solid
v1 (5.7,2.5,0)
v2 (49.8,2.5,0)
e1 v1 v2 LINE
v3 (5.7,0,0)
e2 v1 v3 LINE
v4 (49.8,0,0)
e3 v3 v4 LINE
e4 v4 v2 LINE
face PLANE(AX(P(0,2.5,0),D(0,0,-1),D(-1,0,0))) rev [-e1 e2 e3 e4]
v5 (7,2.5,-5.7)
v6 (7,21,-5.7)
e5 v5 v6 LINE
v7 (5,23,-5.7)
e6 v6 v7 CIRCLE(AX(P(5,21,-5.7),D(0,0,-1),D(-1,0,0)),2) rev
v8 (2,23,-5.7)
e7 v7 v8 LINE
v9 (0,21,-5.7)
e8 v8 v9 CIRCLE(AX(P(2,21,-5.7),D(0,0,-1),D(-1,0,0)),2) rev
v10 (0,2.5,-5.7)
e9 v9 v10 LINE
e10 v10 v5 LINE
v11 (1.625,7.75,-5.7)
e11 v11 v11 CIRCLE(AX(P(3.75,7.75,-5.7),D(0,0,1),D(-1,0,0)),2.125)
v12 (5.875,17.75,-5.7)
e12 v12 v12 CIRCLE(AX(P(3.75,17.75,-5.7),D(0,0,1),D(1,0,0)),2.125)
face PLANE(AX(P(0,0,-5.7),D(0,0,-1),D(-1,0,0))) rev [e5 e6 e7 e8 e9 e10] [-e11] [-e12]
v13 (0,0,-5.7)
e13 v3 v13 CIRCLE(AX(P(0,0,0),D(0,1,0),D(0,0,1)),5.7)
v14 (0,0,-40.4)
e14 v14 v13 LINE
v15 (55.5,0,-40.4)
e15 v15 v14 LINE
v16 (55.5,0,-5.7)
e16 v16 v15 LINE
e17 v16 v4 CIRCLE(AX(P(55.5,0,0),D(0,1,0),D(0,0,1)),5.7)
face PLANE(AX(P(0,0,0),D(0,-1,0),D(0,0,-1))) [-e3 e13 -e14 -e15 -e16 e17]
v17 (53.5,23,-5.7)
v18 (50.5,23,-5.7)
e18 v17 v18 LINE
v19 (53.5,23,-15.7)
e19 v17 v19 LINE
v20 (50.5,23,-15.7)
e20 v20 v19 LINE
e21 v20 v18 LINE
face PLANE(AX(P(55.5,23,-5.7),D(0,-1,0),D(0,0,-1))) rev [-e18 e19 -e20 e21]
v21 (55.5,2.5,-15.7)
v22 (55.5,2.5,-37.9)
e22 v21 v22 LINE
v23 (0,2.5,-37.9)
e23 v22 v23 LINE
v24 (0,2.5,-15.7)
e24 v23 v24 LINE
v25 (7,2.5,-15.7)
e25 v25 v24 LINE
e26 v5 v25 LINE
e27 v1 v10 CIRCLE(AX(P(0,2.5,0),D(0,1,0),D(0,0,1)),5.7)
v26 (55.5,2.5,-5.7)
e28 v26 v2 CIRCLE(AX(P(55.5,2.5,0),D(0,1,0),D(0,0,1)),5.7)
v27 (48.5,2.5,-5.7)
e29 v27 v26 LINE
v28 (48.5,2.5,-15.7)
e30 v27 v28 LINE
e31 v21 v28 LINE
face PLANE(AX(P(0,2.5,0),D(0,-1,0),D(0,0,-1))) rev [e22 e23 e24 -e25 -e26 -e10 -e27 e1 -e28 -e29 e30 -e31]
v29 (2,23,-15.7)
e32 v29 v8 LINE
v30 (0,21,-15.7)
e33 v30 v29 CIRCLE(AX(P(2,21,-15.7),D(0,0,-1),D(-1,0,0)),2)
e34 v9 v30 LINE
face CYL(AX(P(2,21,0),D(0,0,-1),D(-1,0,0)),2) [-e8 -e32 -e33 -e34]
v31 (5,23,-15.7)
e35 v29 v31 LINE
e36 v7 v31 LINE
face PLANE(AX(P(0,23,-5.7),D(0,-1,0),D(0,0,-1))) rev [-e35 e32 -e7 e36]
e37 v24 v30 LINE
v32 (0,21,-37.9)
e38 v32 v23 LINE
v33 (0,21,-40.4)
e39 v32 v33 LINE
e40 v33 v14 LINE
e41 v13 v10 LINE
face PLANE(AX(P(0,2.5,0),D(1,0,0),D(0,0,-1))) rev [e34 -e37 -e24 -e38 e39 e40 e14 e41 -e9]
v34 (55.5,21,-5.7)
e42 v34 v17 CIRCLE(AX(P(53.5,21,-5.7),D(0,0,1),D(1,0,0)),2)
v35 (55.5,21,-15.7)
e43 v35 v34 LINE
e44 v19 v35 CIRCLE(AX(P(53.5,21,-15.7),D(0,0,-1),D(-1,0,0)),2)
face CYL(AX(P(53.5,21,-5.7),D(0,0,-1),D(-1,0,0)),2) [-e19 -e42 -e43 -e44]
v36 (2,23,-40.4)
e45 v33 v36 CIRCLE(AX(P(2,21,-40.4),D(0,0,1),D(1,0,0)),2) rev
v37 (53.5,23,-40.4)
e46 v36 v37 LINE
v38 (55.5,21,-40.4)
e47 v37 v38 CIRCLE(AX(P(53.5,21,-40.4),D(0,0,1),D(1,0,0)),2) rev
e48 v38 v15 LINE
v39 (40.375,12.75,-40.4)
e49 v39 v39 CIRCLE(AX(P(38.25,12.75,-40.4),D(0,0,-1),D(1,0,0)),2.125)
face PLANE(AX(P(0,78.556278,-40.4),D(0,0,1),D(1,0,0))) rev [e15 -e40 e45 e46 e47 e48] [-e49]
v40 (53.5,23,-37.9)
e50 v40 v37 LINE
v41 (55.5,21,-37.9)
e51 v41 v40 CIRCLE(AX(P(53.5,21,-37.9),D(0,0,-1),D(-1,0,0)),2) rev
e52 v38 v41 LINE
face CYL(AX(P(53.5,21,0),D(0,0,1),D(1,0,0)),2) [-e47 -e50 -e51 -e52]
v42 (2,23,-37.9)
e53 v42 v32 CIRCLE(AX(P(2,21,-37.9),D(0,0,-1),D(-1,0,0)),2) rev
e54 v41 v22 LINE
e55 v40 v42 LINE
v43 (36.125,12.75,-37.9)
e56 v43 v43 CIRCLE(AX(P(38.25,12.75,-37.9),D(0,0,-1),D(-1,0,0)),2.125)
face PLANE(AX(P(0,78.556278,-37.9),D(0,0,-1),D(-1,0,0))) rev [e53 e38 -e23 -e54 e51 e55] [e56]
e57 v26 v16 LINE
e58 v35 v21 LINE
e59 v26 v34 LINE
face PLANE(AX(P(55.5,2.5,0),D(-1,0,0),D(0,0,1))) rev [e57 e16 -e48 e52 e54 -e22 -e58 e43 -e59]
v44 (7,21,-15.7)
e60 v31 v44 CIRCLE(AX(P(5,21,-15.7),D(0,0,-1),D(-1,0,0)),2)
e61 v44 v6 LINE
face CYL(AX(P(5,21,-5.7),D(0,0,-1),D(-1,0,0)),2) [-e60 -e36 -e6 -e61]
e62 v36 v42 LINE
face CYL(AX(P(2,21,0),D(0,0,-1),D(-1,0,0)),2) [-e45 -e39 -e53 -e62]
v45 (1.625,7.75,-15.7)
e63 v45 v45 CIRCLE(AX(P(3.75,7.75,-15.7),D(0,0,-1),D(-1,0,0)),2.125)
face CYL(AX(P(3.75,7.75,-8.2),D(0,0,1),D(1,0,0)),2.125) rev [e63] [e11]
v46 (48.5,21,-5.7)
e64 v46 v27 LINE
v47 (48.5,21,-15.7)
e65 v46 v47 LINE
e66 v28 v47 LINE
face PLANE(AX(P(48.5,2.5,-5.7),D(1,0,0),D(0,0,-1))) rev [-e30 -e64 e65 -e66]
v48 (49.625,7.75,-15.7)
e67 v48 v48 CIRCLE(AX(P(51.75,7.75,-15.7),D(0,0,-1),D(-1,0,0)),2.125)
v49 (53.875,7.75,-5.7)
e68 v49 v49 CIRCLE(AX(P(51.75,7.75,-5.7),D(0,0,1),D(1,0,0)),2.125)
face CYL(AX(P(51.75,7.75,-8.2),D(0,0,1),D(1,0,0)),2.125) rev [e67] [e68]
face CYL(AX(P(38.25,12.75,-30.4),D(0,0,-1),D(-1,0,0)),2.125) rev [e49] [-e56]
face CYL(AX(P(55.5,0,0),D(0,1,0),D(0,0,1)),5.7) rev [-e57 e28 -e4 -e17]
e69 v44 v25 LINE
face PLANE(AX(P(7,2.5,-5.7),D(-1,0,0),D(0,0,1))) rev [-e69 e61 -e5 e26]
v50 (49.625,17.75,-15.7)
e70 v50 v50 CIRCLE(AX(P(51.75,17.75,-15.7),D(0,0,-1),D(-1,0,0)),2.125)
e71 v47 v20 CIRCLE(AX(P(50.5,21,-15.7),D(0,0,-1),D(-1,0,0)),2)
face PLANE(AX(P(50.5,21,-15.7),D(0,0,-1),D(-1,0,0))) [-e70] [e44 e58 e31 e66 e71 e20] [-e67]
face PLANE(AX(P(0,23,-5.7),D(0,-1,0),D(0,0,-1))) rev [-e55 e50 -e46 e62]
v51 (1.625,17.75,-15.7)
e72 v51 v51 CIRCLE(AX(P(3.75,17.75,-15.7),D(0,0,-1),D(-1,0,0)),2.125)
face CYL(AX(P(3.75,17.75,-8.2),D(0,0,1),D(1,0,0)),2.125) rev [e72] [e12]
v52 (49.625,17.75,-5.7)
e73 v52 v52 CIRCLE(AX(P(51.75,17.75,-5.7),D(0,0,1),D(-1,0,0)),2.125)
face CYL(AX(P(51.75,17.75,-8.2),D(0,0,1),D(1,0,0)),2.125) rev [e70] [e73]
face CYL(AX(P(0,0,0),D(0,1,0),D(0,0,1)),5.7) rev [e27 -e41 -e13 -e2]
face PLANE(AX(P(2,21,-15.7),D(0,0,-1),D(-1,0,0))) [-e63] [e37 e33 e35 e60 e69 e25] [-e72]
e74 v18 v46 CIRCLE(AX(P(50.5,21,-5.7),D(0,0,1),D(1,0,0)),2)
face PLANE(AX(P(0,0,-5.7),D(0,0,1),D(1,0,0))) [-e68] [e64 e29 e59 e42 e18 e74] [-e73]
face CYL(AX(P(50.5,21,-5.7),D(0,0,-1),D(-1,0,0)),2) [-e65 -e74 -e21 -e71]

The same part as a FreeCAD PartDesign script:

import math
import FreeCAD as App
import Part
import Sketcher

V = App.Vector
Q = App.Units.Quantity


def edges_at(feature, points):
    """Names of the edges that pass closest to the given points."""
    edges = feature.Shape.Edges
    near = lambda p: min(range(len(edges)), key=lambda i: edges[i].distToShape(Part.Vertex(*p))[0])
    return sorted({f"Edge{near(p) + 1}" for p in points})


def add_polygon(sketch, points):
    """Adds a closed chain of lines whose ends are joined by coincident constraints."""
    first, n = sketch.GeometryCount, len(points)
    for a, b in zip(points, points[1:] + points[:1]):
        sketch.addGeometry(Part.LineSegment(App.Vector(*a, 0), App.Vector(*b, 0)), False)
    for i in range(n):
        sketch.addConstraint(Sketcher.Constraint("Coincident", first + i, 2, first + (i + 1) % n, 1))

doc = App.newDocument("Part")
params = doc.addObject("Spreadsheet::Sheet", "Params")
for row, (alias, value) in enumerate([
    ("sketch1_width", "55.5 mm"),
    ("sketch1_height", "37.9 mm"),
    ("pad1_length", "2.5 mm"),
    ("sketch2_width", "7 mm"),
    ("sketch2_height", "20.5 mm"),
    ("pad2_length", "2.5 mm"),
    ("sketch3_diameter", "4.25 mm"),
    ("pocket1_length", "2.5 mm"),
    ("sketch4_width", "55.5 mm"),
    ("sketch4_height", "2.5 mm"),
    ("pad3_length", "23 mm"),
    ("sketch5_diameter", "11.4 mm"),
    ("pocket2_length", "2.5 mm"),
    ("fillet_radius", "2 mm"),
    ("sketch6_diameter", "4.25 mm"),
    ("pocket3_length", "10 mm"),
    ("sketch7_diameter", "4.25 mm"),
    ("pocket4_length", "10 mm"),
    ("sketch8_diameter", "4.25 mm"),
    ("pad4_length", "2.5 mm"),
    ("sketch9_radius", "2 mm"),
    ("sketch9_diameter", "4.25 mm"),
    ("sketch9_width", "3 mm"),
    ("sketch9_height", "18.5 mm"),
    ("pad5_length", "7.5 mm"),
], start=1):
    params.set(f"A{row}", alias)
    params.set(f"B{row}", "=" + value)
    params.setAlias(f"B{row}", alias)

body = doc.addObject("PartDesign::Body", "Body")

sketch1 = body.newObject("Sketcher::SketchObject", "Sketch")
sketch1.AttachmentSupport = (doc.getObject("XZ_Plane"), [""])
sketch1.MapMode = "FlatFace"
add_polygon(sketch1, [(0, -37.9), (0, 0), (55.5, 0), (55.5, -37.9)])
sketch1.addConstraint([
    Sketcher.Constraint("Vertical", 0),
    Sketcher.Constraint("Horizontal", 1),
    Sketcher.Constraint("Vertical", 2),
    Sketcher.Constraint("Horizontal", 3),
    Sketcher.Constraint("Coincident", 0, 2, -1, 1),
    Sketcher.Constraint("DistanceX", 1, 1, 1, 2, Q("55.5 mm")),
    Sketcher.Constraint("DistanceY", 0, 1, 0, 2, Q("37.9 mm")),
])
sketch1.setExpression("Constraints[9]", "Params.sketch1_width")
sketch1.setExpression("Constraints[10]", "Params.sketch1_height")
pad1 = body.newObject("PartDesign::Pad", "Pad")
pad1.Profile = sketch1
pad1.setExpression("Length", "Params.pad1_length")
pad1.Reversed = True

sketch2 = body.newObject("Sketcher::SketchObject", "Sketch001")
sketch2.AttachmentSupport = (doc.getObject("XY_Plane"), [""])
sketch2.MapMode = "FlatFace"
sketch2.AttachmentOffset = App.Placement(V(0, 0, -8.2), App.Rotation())
add_polygon(sketch2, [(0, 23), (0, 2.5), (7, 2.5), (7, 23)])
add_polygon(sketch2, [(48.5, 23), (48.5, 2.5), (55.5, 2.5), (55.5, 23)])
sketch2.addConstraint([
    Sketcher.Constraint("Vertical", 0),
    Sketcher.Constraint("Horizontal", 1),
    Sketcher.Constraint("Vertical", 2),
    Sketcher.Constraint("Horizontal", 3),
    Sketcher.Constraint("Vertical", 4),
    Sketcher.Constraint("Horizontal", 5),
    Sketcher.Constraint("Vertical", 6),
    Sketcher.Constraint("Horizontal", 7),
    Sketcher.Constraint("PointOnObject", 0, 2, -2),
    Sketcher.Constraint("Horizontal", 1, 2, 4, 2),
    Sketcher.Constraint("Horizontal", 3, 2, 6, 2),
    Sketcher.Constraint("Equal", 3, 5),
    Sketcher.Constraint("DistanceX", 1, 1, 1, 2, Q("7 mm")),
    Sketcher.Constraint("DistanceY", 0, 2, 0, 1, Q("20.5 mm")),
    Sketcher.Constraint("DistanceY", -1, 1, 2, 2, Q("23 mm")),
    Sketcher.Constraint("DistanceX", -1, 1, 4, 2, Q("48.5 mm")),
])
sketch2.setExpression("Constraints[20]", "Params.sketch2_width")
sketch2.setExpression("Constraints[21]", "Params.sketch2_height")
pad2 = body.newObject("PartDesign::Pad", "Pad001")
pad2.Profile = sketch2
pad2.setExpression("Length", "Params.pad2_length")

sketch3 = body.newObject("Sketcher::SketchObject", "Sketch002")
sketch3.AttachmentSupport = (doc.getObject("XY_Plane"), [""])
sketch3.MapMode = "FlatFace"
sketch3.AttachmentOffset = App.Placement(V(0, 0, -5.7), App.Rotation())
sketch3.addGeometry([
    Part.Circle(V(3.75, 17.75, 0), V(0, 0, 1), 2.125),
    Part.Circle(V(3.75, 7.75, 0), V(0, 0, 1), 2.125),
    Part.Circle(V(51.75, 7.75, 0), V(0, 0, 1), 2.125),
    Part.Circle(V(51.75, 17.75, 0), V(0, 0, 1), 2.125),
], False)
sketch3.addConstraint([
    Sketcher.Constraint("Equal", 0, 1),
    Sketcher.Constraint("Equal", 1, 2),
    Sketcher.Constraint("Equal", 2, 3),
    Sketcher.Constraint("Horizontal", 1, 3, 2, 3),
    Sketcher.Constraint("Horizontal", 0, 3, 3, 3),
    Sketcher.Constraint("Vertical", 0, 3, 1, 3),
    Sketcher.Constraint("Vertical", 2, 3, 3, 3),
    Sketcher.Constraint("Diameter", 0, Q("4.25 mm")),
    Sketcher.Constraint("DistanceY", 1, 3, 0, 3, Q("10 mm")),
    Sketcher.Constraint("DistanceX", 1, 3, 2, 3, Q("48 mm")),
    Sketcher.Constraint("DistanceX", -1, 1, 0, 3, Q("3.75 mm")),
    Sketcher.Constraint("DistanceY", -1, 1, 0, 3, Q("17.75 mm")),
])
sketch3.setExpression("Constraints[7]", "Params.sketch3_diameter")
pocket1 = body.newObject("PartDesign::Pocket", "Pocket")
pocket1.Profile = sketch3
pocket1.setExpression("Length", "Params.pocket1_length")

sketch4 = body.newObject("Sketcher::SketchObject", "Sketch003")
sketch4.AttachmentSupport = (doc.getObject("XZ_Plane"), [""])
sketch4.MapMode = "FlatFace"
add_polygon(sketch4, [(0, -40.4), (0, -37.9), (55.5, -37.9), (55.5, -40.4)])
sketch4.addConstraint([
    Sketcher.Constraint("Vertical", 0),
    Sketcher.Constraint("Horizontal", 1),
    Sketcher.Constraint("Vertical", 2),
    Sketcher.Constraint("Horizontal", 3),
    Sketcher.Constraint("PointOnObject", 0, 2, -2),
    Sketcher.Constraint("DistanceX", 1, 1, 1, 2, Q("55.5 mm")),
    Sketcher.Constraint("DistanceY", 0, 1, 0, 2, Q("2.5 mm")),
    Sketcher.Constraint("DistanceY", 0, 2, -1, 1, Q("37.9 mm")),
])
sketch4.setExpression("Constraints[9]", "Params.sketch4_width")
sketch4.setExpression("Constraints[10]", "Params.sketch4_height")
pad3 = body.newObject("PartDesign::Pad", "Pad002")
pad3.Profile = sketch4
pad3.setExpression("Length", "Params.pad3_length")
pad3.Reversed = True

sketch5 = body.newObject("Sketcher::SketchObject", "Sketch004")
sketch5.AttachmentSupport = (doc.getObject("XZ_Plane"), [""])
sketch5.MapMode = "FlatFace"
sketch5.AttachmentOffset = App.Placement(V(0, 0, -2.5), App.Rotation())
sketch5.addGeometry([
    Part.Circle(V(0, 0, 0), V(0, 0, 1), 5.7),
    Part.Circle(V(55.5, 0, 0), V(0, 0, 1), 5.7),
], False)
sketch5.addConstraint([
    Sketcher.Constraint("Coincident", 0, 3, -1, 1),
    Sketcher.Constraint("Equal", 0, 1),
    Sketcher.Constraint("PointOnObject", 1, 3, -1),
    Sketcher.Constraint("Diameter", 0, Q("11.4 mm")),
    Sketcher.Constraint("DistanceX", -1, 1, 1, 3, Q("55.5 mm")),
])
sketch5.setExpression("Constraints[3]", "Params.sketch5_diameter")
pocket2 = body.newObject("PartDesign::Pocket", "Pocket001")
pocket2.Profile = sketch5
pocket2.setExpression("Length", "Params.pocket2_length")
pocket2.Reversed = True
doc.recompute()

fillet = body.newObject("PartDesign::Fillet", "Fillet")
fillet.Base = (pocket2, edges_at(pocket2, [
    (0, 23, -6.95),
    (7, 23, -6.95),
    (55.5, 23, -6.95),
    (48.5, 23, -6.95),
    (55.5, 23, -39.15),
    (0, 23, -39.15),
]))
fillet.setExpression("Radius", "Params.fillet_radius")

sketch6 = body.newObject("Sketcher::SketchObject", "Sketch005")
sketch6.AttachmentSupport = (doc.getObject("XY_Plane"), [""])
sketch6.MapMode = "FlatFace"
sketch6.AttachmentOffset = App.Placement(V(0, 0, -40.4), App.Rotation())
sketch6.addGeometry(Part.Circle(V(17.25, 12.75, 0), V(0, 0, 1), 2.125), False)
sketch6.addConstraint([
    Sketcher.Constraint("Diameter", 0, Q("4.25 mm")),
    Sketcher.Constraint("DistanceX", -1, 1, 0, 3, Q("17.25 mm")),
    Sketcher.Constraint("DistanceY", -1, 1, 0, 3, Q("12.75 mm")),
])
sketch6.setExpression("Constraints[0]", "Params.sketch6_diameter")
pocket3 = body.newObject("PartDesign::Pocket", "Pocket002")
pocket3.Profile = sketch6
pocket3.setExpression("Length", "Params.pocket3_length")
pocket3.Reversed = True

sketch7 = body.newObject("Sketcher::SketchObject", "Sketch006")
sketch7.AttachmentSupport = (doc.getObject("XY_Plane"), [""])
sketch7.MapMode = "FlatFace"
sketch7.AttachmentOffset = App.Placement(V(0, 0, -40.4), App.Rotation())
sketch7.addGeometry(Part.Circle(V(38.25, 12.75, 0), V(0, 0, 1), 2.125), False)
sketch7.addConstraint([
    Sketcher.Constraint("Diameter", 0, Q("4.25 mm")),
    Sketcher.Constraint("DistanceX", -1, 1, 0, 3, Q("38.25 mm")),
    Sketcher.Constraint("DistanceY", -1, 1, 0, 3, Q("12.75 mm")),
])
sketch7.setExpression("Constraints[0]", "Params.sketch7_diameter")
pocket4 = body.newObject("PartDesign::Pocket", "Pocket003")
pocket4.Profile = sketch7
pocket4.setExpression("Length", "Params.pocket4_length")
pocket4.Reversed = True

sketch8 = body.newObject("Sketcher::SketchObject", "Sketch007")
sketch8.AttachmentSupport = (doc.getObject("XY_Plane"), [""])
sketch8.MapMode = "FlatFace"
sketch8.AttachmentOffset = App.Placement(V(0, 0, -40.4), App.Rotation())
sketch8.addGeometry(Part.Circle(V(17.25, 12.75, 0), V(0, 0, 1), 2.125), False)
sketch8.addConstraint([
    Sketcher.Constraint("Diameter", 0, Q("4.25 mm")),
    Sketcher.Constraint("DistanceX", -1, 1, 0, 3, Q("17.25 mm")),
    Sketcher.Constraint("DistanceY", -1, 1, 0, 3, Q("12.75 mm")),
])
sketch8.setExpression("Constraints[0]", "Params.sketch8_diameter")
pad4 = body.newObject("PartDesign::Pad", "Pad003")
pad4.Profile = sketch8
pad4.setExpression("Length", "Params.pad4_length")

sketch9 = body.newObject("Sketcher::SketchObject", "Sketch008")
sketch9.AttachmentSupport = (doc.getObject("XY_Plane"), [""])
sketch9.MapMode = "FlatFace"
sketch9.AttachmentOffset = App.Placement(V(0, 0, -8.2), App.Rotation())
sketch9.addGeometry([
    Part.LineSegment(V(48.5, 2.5, 0), V(48.5, 21, 0)),
    Part.ArcOfCircle(Part.Circle(V(50.5, 21, 0), V(0, 0, 1), 2), math.radians(90), math.radians(180)),
    Part.LineSegment(V(50.5, 23, 0), V(53.5, 23, 0)),
    Part.ArcOfCircle(Part.Circle(V(53.5, 21, 0), V(0, 0, 1), 2), math.radians(0), math.radians(90)),
    Part.LineSegment(V(55.5, 21, 0), V(55.5, 2.5, 0)),
    Part.LineSegment(V(55.5, 2.5, 0), V(48.5, 2.5, 0)),
    Part.Circle(V(51.75, 7.75, 0), V(0, 0, 1), 2.125),
    Part.Circle(V(51.75, 17.75, 0), V(0, 0, 1), 2.125),
    Part.LineSegment(V(2, 23, 0), V(5, 23, 0)),
    Part.ArcOfCircle(Part.Circle(V(5, 21, 0), V(0, 0, 1), 2), math.radians(0), math.radians(90)),
    Part.LineSegment(V(7, 21, 0), V(7, 2.5, 0)),
    Part.LineSegment(V(7, 2.5, 0), V(0, 2.5, 0)),
    Part.LineSegment(V(0, 2.5, 0), V(0, 21, 0)),
    Part.ArcOfCircle(Part.Circle(V(2, 21, 0), V(0, 0, 1), 2), math.radians(90), math.radians(180)),
    Part.Circle(V(3.75, 7.75, 0), V(0, 0, 1), 2.125),
    Part.Circle(V(3.75, 17.75, 0), V(0, 0, 1), 2.125),
], False)
sketch9.addConstraint([
    Sketcher.Constraint("Tangent", 0, 2, 1, 2),
    Sketcher.Constraint("Tangent", 1, 1, 2, 1),
    Sketcher.Constraint("Tangent", 2, 2, 3, 2),
    Sketcher.Constraint("Tangent", 3, 1, 4, 1),
    Sketcher.Constraint("Coincident", 4, 2, 5, 1),
    Sketcher.Constraint("Coincident", 5, 2, 0, 1),
    Sketcher.Constraint("Tangent", 8, 2, 9, 2),
    Sketcher.Constraint("Tangent", 9, 1, 10, 1),
    Sketcher.Constraint("Coincident", 10, 2, 11, 1),
    Sketcher.Constraint("Coincident", 11, 2, 12, 1),
    Sketcher.Constraint("Tangent", 12, 2, 13, 2),
    Sketcher.Constraint("Tangent", 13, 1, 8, 1),
    Sketcher.Constraint("Vertical", 0),
    Sketcher.Constraint("Horizontal", 2),
    Sketcher.Constraint("Vertical", 4),
    Sketcher.Constraint("Horizontal", 5),
    Sketcher.Constraint("Horizontal", 8),
    Sketcher.Constraint("Vertical", 10),
    Sketcher.Constraint("Horizontal", 11),
    Sketcher.Constraint("Vertical", 12),
    Sketcher.Constraint("Equal", 1, 3),
    Sketcher.Constraint("Equal", 6, 7),
    Sketcher.Constraint("Equal", 3, 9),
    Sketcher.Constraint("Equal", 9, 13),
    Sketcher.Constraint("Equal", 7, 14),
    Sketcher.Constraint("Equal", 14, 15),
    Sketcher.Constraint("PointOnObject", 11, 2, -2),
    Sketcher.Constraint("Horizontal", 3, 3, 9, 3),
    Sketcher.Constraint("Horizontal", 6, 3, 14, 3),
    Sketcher.Constraint("Horizontal", 7, 3, 15, 3),
    Sketcher.Constraint("Horizontal", 5, 2, 10, 2),
    Sketcher.Constraint("Vertical", 6, 3, 7, 3),
    Sketcher.Constraint("Vertical", 14, 3, 15, 3),
    Sketcher.Constraint("Equal", 2, 8),
    Sketcher.Constraint("Radius", 1, Q("2 mm")),
    Sketcher.Constraint("Diameter", 6, Q("4.25 mm")),
    Sketcher.Constraint("DistanceX", 2, 1, 2, 2, Q("3 mm")),
    Sketcher.Constraint("DistanceY", 0, 1, 0, 2, Q("18.5 mm")),
    Sketcher.Constraint("DistanceY", -1, 1, 1, 3, Q("21 mm")),
    Sketcher.Constraint("DistanceY", 6, 3, 7, 3, Q("10 mm")),
    Sketcher.Constraint("DistanceX", 14, 3, 6, 3, Q("48 mm")),
    Sketcher.Constraint("DistanceX", -1, 1, 1, 3, Q("50.5 mm")),
    Sketcher.Constraint("DistanceX", -1, 1, 6, 3, Q("51.75 mm")),
    Sketcher.Constraint("DistanceY", -1, 1, 6, 3, Q("7.75 mm")),
])
sketch9.setExpression("Constraints[34]", "Params.sketch9_radius")
sketch9.setExpression("Constraints[35]", "Params.sketch9_diameter")
sketch9.setExpression("Constraints[36]", "Params.sketch9_width")
sketch9.setExpression("Constraints[37]", "Params.sketch9_height")
pad5 = body.newObject("PartDesign::Pad", "Pad004")
pad5.Profile = sketch9
pad5.setExpression("Length", "Params.pad5_length")
pad5.Reversed = True

doc.recompute()
